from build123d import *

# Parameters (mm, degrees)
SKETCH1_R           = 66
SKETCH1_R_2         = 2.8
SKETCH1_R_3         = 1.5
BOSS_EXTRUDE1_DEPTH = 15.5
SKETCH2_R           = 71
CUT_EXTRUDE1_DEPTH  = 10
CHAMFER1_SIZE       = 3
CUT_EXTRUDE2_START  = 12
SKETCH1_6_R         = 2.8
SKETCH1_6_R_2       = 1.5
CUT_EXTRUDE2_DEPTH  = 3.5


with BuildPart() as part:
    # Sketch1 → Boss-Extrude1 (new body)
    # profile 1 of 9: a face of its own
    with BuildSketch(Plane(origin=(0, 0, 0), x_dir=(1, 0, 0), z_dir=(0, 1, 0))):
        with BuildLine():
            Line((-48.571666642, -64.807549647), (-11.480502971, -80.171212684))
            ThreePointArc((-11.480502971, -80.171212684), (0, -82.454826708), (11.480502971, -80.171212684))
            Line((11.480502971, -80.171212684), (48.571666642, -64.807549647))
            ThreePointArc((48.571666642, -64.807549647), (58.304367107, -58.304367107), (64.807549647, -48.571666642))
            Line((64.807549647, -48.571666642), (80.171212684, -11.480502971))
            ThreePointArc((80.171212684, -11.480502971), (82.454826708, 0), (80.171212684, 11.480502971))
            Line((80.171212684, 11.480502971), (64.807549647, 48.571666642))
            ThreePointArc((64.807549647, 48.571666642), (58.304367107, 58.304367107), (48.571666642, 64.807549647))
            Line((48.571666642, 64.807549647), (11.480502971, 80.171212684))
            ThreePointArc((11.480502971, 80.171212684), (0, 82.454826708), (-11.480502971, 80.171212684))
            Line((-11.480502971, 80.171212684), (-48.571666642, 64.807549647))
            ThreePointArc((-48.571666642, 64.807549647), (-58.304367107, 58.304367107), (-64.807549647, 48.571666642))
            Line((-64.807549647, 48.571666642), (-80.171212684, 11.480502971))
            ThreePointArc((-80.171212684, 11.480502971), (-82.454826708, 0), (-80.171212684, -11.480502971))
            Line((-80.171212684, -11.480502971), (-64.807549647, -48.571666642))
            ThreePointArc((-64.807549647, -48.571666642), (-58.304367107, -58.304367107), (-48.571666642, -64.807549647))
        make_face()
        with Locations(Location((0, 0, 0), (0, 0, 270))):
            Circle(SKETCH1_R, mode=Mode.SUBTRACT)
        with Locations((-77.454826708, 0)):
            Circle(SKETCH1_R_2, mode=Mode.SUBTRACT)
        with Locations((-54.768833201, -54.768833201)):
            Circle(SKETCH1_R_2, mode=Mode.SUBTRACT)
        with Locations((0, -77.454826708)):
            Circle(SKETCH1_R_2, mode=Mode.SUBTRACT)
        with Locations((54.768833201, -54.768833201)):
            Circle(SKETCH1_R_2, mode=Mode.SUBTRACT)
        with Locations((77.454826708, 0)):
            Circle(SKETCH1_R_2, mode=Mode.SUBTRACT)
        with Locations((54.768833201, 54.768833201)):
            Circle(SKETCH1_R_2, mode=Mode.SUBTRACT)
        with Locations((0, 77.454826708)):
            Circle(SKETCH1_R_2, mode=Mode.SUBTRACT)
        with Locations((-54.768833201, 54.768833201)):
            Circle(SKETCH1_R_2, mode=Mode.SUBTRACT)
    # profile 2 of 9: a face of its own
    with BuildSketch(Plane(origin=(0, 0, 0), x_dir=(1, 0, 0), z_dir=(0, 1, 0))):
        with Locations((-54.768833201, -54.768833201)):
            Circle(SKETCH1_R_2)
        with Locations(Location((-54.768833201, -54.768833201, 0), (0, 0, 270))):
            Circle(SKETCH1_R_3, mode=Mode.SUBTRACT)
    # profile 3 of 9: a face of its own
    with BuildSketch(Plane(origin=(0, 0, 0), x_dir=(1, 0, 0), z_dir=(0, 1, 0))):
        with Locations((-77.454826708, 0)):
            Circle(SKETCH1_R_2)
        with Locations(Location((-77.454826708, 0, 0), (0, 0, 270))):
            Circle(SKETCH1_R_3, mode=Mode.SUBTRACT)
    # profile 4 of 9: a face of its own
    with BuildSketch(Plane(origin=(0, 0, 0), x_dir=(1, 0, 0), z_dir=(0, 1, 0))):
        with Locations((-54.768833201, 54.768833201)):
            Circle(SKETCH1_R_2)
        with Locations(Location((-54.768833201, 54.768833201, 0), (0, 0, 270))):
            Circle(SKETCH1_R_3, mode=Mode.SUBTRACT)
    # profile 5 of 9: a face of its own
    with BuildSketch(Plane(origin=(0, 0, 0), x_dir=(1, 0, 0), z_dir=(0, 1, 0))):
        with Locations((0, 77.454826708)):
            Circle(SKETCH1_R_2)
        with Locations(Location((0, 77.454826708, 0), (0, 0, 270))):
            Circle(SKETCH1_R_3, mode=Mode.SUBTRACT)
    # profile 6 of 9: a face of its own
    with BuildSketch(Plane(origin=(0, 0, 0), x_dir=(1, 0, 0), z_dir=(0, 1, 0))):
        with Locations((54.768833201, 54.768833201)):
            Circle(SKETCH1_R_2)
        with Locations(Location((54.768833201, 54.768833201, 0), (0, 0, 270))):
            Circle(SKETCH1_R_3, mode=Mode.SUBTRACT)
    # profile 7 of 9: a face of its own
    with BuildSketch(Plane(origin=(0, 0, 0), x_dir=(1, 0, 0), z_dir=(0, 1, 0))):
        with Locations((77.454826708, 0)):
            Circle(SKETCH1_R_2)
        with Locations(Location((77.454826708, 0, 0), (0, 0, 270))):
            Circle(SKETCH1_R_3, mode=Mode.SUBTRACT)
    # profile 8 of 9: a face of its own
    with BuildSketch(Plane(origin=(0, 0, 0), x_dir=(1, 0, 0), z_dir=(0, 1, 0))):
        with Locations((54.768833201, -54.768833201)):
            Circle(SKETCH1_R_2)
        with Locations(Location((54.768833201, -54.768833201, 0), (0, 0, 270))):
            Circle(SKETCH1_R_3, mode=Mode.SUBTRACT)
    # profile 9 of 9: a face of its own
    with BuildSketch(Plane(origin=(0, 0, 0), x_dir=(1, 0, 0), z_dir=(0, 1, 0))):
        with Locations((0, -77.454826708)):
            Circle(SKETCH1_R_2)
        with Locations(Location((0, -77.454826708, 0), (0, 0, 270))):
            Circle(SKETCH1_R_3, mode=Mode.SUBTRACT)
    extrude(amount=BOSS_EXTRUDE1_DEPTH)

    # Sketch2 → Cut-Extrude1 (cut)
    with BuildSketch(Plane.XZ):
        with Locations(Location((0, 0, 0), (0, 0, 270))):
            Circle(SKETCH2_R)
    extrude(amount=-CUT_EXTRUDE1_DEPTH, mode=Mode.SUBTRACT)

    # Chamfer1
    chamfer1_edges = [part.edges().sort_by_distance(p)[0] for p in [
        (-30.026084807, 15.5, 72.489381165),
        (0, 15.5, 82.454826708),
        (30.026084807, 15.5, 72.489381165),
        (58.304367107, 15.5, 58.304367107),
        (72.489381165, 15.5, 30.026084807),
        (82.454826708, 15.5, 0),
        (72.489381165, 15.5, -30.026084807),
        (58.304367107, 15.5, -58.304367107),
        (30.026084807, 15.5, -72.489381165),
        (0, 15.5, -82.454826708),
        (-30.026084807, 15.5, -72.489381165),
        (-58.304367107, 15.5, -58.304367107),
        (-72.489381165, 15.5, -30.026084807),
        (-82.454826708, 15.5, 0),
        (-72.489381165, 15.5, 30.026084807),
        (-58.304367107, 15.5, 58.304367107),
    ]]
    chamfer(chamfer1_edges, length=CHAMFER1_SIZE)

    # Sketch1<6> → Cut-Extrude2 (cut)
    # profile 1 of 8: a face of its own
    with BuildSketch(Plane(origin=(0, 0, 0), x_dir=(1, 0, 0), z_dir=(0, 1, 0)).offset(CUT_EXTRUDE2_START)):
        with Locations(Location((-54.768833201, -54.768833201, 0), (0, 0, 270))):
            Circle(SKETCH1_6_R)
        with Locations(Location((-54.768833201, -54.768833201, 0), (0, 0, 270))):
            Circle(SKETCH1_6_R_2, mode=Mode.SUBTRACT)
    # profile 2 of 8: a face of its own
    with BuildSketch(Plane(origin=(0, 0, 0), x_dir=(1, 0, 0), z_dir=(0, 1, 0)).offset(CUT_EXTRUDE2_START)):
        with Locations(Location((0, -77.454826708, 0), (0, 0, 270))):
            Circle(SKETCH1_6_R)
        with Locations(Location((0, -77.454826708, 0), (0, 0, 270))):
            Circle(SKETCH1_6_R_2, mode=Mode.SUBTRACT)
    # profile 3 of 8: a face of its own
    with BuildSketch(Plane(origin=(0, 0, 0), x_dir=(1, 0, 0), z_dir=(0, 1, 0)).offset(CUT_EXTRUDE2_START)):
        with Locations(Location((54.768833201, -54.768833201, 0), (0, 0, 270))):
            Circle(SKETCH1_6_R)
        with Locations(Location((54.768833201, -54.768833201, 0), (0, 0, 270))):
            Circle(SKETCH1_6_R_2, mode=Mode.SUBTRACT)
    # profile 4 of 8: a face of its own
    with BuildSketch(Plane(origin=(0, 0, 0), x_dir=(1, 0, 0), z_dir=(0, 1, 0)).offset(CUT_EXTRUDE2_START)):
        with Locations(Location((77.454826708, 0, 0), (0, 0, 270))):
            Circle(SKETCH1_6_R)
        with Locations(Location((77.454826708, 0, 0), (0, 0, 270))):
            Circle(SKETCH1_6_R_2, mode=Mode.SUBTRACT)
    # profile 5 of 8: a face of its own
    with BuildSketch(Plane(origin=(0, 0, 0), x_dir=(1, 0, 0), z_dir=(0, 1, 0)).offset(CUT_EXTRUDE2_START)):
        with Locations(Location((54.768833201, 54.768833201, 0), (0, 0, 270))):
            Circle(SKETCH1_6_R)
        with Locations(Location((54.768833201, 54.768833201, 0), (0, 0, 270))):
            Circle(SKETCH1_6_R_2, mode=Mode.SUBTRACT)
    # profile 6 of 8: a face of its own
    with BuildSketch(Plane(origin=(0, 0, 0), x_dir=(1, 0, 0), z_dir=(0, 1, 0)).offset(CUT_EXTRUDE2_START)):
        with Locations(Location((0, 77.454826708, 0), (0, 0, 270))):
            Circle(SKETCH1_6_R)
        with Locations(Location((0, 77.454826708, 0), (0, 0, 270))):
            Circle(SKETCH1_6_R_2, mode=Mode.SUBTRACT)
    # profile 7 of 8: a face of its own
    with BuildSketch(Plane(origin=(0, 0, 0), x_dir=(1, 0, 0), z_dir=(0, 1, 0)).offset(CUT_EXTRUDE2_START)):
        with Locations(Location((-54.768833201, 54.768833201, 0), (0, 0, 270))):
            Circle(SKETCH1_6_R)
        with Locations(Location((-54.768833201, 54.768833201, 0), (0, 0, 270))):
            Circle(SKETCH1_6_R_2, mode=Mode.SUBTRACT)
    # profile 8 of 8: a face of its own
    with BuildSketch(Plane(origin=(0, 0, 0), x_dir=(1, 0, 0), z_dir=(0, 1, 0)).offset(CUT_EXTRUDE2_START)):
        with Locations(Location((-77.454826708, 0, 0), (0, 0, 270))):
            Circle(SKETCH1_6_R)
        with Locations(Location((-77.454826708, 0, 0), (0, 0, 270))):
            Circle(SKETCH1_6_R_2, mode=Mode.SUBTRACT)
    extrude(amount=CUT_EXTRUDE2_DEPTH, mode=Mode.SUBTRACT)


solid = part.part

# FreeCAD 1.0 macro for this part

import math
import FreeCAD as App
import Part
import Sketcher

V = App.Vector
Q = App.Units.Quantity


def edges_at(feature, points):
    """Names of the edges that pass closest to the given points."""
    edges = feature.Shape.Edges
    near = lambda p: min(range(len(edges)), key=lambda i: edges[i].distToShape(Part.Vertex(*p))[0])
    return sorted({f"Edge{near(p) + 1}" for p in points})

doc = App.newDocument("Part")
params = doc.addObject("Spreadsheet::Sheet", "Params")
for row, (alias, value) in enumerate([
    ("sketch1_diameter", "132 mm"),
    ("sketch1_diameter2", "3 mm"),
    ("sketch1_radius", "30 mm"),
    ("pad1_length", "15.5 mm"),
    ("sketch2_diameter", "142 mm"),
    ("pocket1_length", "10 mm"),
    ("chamfer_size", "3 mm"),
    ("sketch3_diameter", "3 mm"),
    ("sketch3_diameter2", "5.6 mm"),
    ("pocket2_length", "3.5 mm"),
], start=1):
    params.set(f"A{row}", alias)
    params.set(f"B{row}", "=" + value)
    params.setAlias(f"B{row}", alias)

body = doc.addObject("PartDesign::Body", "Body")

# Sketch on XZ plane
sketch1 = doc.addObject("Sketcher::SketchObject", "Sketch")
body.addObject(sketch1)
sketch1.AttachmentSupport = (doc.XZ_Plane, [""])
sketch1.MapMode = "FlatFace"
sketch1.addGeometry(Part.LineSegment(V(-48.571667, 64.80755, 0), V(-11.480503, 80.171213, 0)), False)
sketch1.addGeometry(Part.ArcOfCircle(Part.Circle(V(0, 52.454827, 0), V(0, 0, 1), 30), math.radians(67.5), math.radians(112.5)), False)
sketch1.addGeometry(Part.LineSegment(V(11.480503, 80.171213, 0), V(48.571667, 64.80755, 0)), False)
sketch1.addGeometry(Part.ArcOfCircle(Part.Circle(V(37.091164, 37.091164, 0), V(0, 0, 1), 30), math.radians(22.5), math.radians(67.5)), False)
sketch1.addGeometry(Part.LineSegment(V(64.80755, 48.571667, 0), V(80.171213, 11.480503, 0)), False)
sketch1.addGeometry(Part.ArcOfCircle(Part.Circle(V(52.454827, 0, 0), V(0, 0, 1), 30), math.radians(-22.5), math.radians(22.5)), False)
sketch1.addGeometry(Part.LineSegment(V(80.171213, -11.480503, 0), V(64.80755, -48.571667, 0)), False)
sketch1.addGeometry(Part.ArcOfCircle(Part.Circle(V(37.091164, -37.091164, 0), V(0, 0, 1), 30), math.radians(-67.5), math.radians(-22.5)), False)
sketch1.addGeometry(Part.LineSegment(V(48.571667, -64.80755, 0), V(11.480503, -80.171213, 0)), False)
sketch1.addGeometry(Part.ArcOfCircle(Part.Circle(V(0, -52.454827, 0), V(0, 0, 1), 30), math.radians(-112.5), math.radians(-67.5)), False)
sketch1.addGeometry(Part.LineSegment(V(-11.480503, -80.171213, 0), V(-48.571667, -64.80755, 0)), False)
sketch1.addGeometry(Part.ArcOfCircle(Part.Circle(V(-37.091164, -37.091164, 0), V(0, 0, 1), 30), math.radians(-157.5), math.radians(-112.5)), False)
sketch1.addGeometry(Part.LineSegment(V(-64.80755, -48.571667, 0), V(-80.171213, -11.480503, 0)), False)
sketch1.addGeometry(Part.ArcOfCircle(Part.Circle(V(-52.454827, 0, 0), V(0, 0, 1), 30), math.radians(157.5), math.radians(202.5)), False)
sketch1.addGeometry(Part.LineSegment(V(-80.171213, 11.480503, 0), V(-64.80755, 48.571667, 0)), False)
sketch1.addGeometry(Part.ArcOfCircle(Part.Circle(V(-37.091164, 37.091164, 0), V(0, 0, 1), 30), math.radians(112.5), math.radians(157.5)), False)
sketch1.addGeometry(Part.Circle(V(0, 0, 0), V(0, 0, 1), 66), False)
sketch1.addGeometry(Part.Circle(V(-54.768833, 54.768833, 0), V(0, 0, 1), 1.5), False)
sketch1.addGeometry(Part.Circle(V(0, 77.454827, 0), V(0, 0, 1), 1.5), False)
sketch1.addGeometry(Part.Circle(V(54.768833, 54.768833, 0), V(0, 0, 1), 1.5), False)
sketch1.addGeometry(Part.Circle(V(-77.454827, 0, 0), V(0, 0, 1), 1.5), False)
sketch1.addGeometry(Part.Circle(V(-54.768833, -54.768833, 0), V(0, 0, 1), 1.5), False)
sketch1.addGeometry(Part.Circle(V(77.454827, 0, 0), V(0, 0, 1), 1.5), False)
sketch1.addGeometry(Part.Circle(V(0, -77.454827, 0), V(0, 0, 1), 1.5), False)
sketch1.addGeometry(Part.Circle(V(54.768833, -54.768833, 0), V(0, 0, 1), 1.5), False)
sketch1.addConstraint(Sketcher.Constraint("Tangent", 0, 2, 1, 2))
sketch1.addConstraint(Sketcher.Constraint("Tangent", 1, 1, 2, 1))
sketch1.addConstraint(Sketcher.Constraint("Tangent", 2, 2, 3, 2))
sketch1.addConstraint(Sketcher.Constraint("Tangent", 3, 1, 4, 1))
sketch1.addConstraint(Sketcher.Constraint("Tangent", 4, 2, 5, 2))
sketch1.addConstraint(Sketcher.Constraint("Tangent", 5, 1, 6, 1))
sketch1.addConstraint(Sketcher.Constraint("Tangent", 6, 2, 7, 2))
sketch1.addConstraint(Sketcher.Constraint("Tangent", 7, 1, 8, 1))
sketch1.addConstraint(Sketcher.Constraint("Tangent", 8, 2, 9, 2))
sketch1.addConstraint(Sketcher.Constraint("Tangent", 9, 1, 10, 1))
sketch1.addConstraint(Sketcher.Constraint("Tangent", 10, 2, 11, 2))
sketch1.addConstraint(Sketcher.Constraint("Tangent", 11, 1, 12, 1))
sketch1.addConstraint(Sketcher.Constraint("Tangent", 12, 2, 13, 2))
sketch1.addConstraint(Sketcher.Constraint("Tangent", 13, 1, 14, 1))
sketch1.addConstraint(Sketcher.Constraint("Tangent", 14, 2, 15, 2))
sketch1.addConstraint(Sketcher.Constraint("Tangent", 15, 1, 0, 1))
sketch1.addConstraint(Sketcher.Constraint("Coincident", 16, 3, -1, 1))
sketch1.addConstraint(Sketcher.Constraint("Equal", 1, 3))
sketch1.addConstraint(Sketcher.Constraint("Equal", 3, 5))
sketch1.addConstraint(Sketcher.Constraint("Equal", 5, 7))
sketch1.addConstraint(Sketcher.Constraint("Equal", 7, 9))
sketch1.addConstraint(Sketcher.Constraint("Equal", 9, 11))
sketch1.addConstraint(Sketcher.Constraint("Equal", 11, 13))
sketch1.addConstraint(Sketcher.Constraint("Equal", 13, 15))
sketch1.addConstraint(Sketcher.Constraint("Equal", 17, 18))
sketch1.addConstraint(Sketcher.Constraint("Equal", 18, 19))
sketch1.addConstraint(Sketcher.Constraint("Equal", 19, 20))
sketch1.addConstraint(Sketcher.Constraint("Equal", 20, 21))
sketch1.addConstraint(Sketcher.Constraint("Equal", 21, 22))
sketch1.addConstraint(Sketcher.Constraint("Equal", 22, 23))
sketch1.addConstraint(Sketcher.Constraint("Equal", 23, 24))
sketch1.addConstraint(Sketcher.Constraint("Symmetric", 1, 3, 9, 3, -1, 1))
sketch1.addConstraint(Sketcher.Constraint("Symmetric", 3, 3, 11, 3, -1, 1))
sketch1.addConstraint(Sketcher.Constraint("Symmetric", 5, 3, 13, 3, -1, 1))
sketch1.addConstraint(Sketcher.Constraint("Symmetric", 7, 3, 15, 3, -1, 1))
sketch1.addConstraint(Sketcher.Constraint("Symmetric", 19, 3, 21, 3, -1, 1))
sketch1.addConstraint(Sketcher.Constraint("Symmetric", 20, 3, 22, 3, -1, 1))
sketch1.addConstraint(Sketcher.Constraint("Symmetric", 18, 3, 23, 3, -1, 1))
sketch1.addConstraint(Sketcher.Constraint("Symmetric", 17, 3, 24, 3, -1, 1))
sketch1.addConstraint(Sketcher.Constraint("Symmetric", 7, 3, 11, 3, -2))
sketch1.addConstraint(Sketcher.Constraint("Symmetric", 17, 3, 19, 3, -2))
sketch1.addConstraint(Sketcher.Constraint("PointOnObject", 1, 3, -2))
sketch1.addConstraint(Sketcher.Constraint("PointOnObject", 5, 3, -1))
sketch1.addConstraint(Sketcher.Constraint("PointOnObject", 18, 3, -2))
sketch1.addConstraint(Sketcher.Constraint("PointOnObject", 20, 3, -1))
sketch1.addConstraint(Sketcher.Constraint("Perpendicular", 0, 4))
sketch1.addConstraint(Sketcher.Constraint("Equal", 2, 4))
sketch1.addConstraint(Sketcher.Constraint("Diameter", 16, Q("132 mm")))
sketch1.addConstraint(Sketcher.Constraint("Diameter", 17, Q("3 mm")))
sketch1.addConstraint(Sketcher.Constraint("Radius", 1, Q("30 mm")))
sketch1.addConstraint(Sketcher.Constraint("Angle", 0, Q("22.5 deg")))
sketch1.addConstraint(Sketcher.Constraint("DistanceY", 1, 3, 18, 3, Q("25 mm")))
sketch1.addConstraint(Sketcher.Constraint("DistanceX", 20, 3, 13, 3, Q("25 mm")))
sketch1.addConstraint(Sketcher.Constraint("DistanceY", -1, 1, 2, 2, Q("64.80755 mm")))
sketch1.addConstraint(Sketcher.Constraint("DistanceX", 17, 3, 15, 3, Q("17.67767 mm")))
sketch1.addConstraint(Sketcher.Constraint("DistanceY", 15, 3, 17, 3, Q("17.67767 mm")))
sketch1.setExpression("Constraints[47]", "Params.sketch1_diameter")
sketch1.setExpression("Constraints[48]", "Params.sketch1_diameter2")
sketch1.setExpression("Constraints[49]", "Params.sketch1_radius")
pad1 = doc.addObject("PartDesign::Pad", "Pad")
body.addObject(pad1)
pad1.Profile = sketch1
pad1.setExpression("Length", "Params.pad1_length")
pad1.Reversed = True

# Sketch on XZ plane
sketch2 = doc.addObject("Sketcher::SketchObject", "Sketch001")
body.addObject(sketch2)
sketch2.AttachmentSupport = (doc.XZ_Plane, [""])
sketch2.MapMode = "FlatFace"
sketch2.addGeometry(Part.Circle(V(0, 0, 0), V(0, 0, 1), 71), False)
sketch2.addConstraint(Sketcher.Constraint("Coincident", 0, 3, -1, 1))
sketch2.addConstraint(Sketcher.Constraint("Diameter", 0, Q("142 mm")))
sketch2.setExpression("Constraints[1]", "Params.sketch2_diameter")
pocket1 = doc.addObject("PartDesign::Pocket", "Pocket")
body.addObject(pocket1)
pocket1.Profile = sketch2
pocket1.setExpression("Length", "Params.pocket1_length")
doc.recompute()

chamfer = doc.addObject("PartDesign::Chamfer", "Chamfer")
body.addObject(chamfer)
chamfer.Base = (pocket1, edges_at(pocket1, [
    (-30.026, 15.5, 72.489),
    (0, 15.5, 82.455),
    (30.026, 15.5, 72.489),
    (58.304, 15.5, 58.304),
    (72.489, 15.5, 30.026),
    (82.455, 15.5, 0),
    (72.489, 15.5, -30.026),
    (58.304, 15.5, -58.304),
    (30.026, 15.5, -72.489),
    (0, 15.5, -82.455),
    (-30.026, 15.5, -72.489),
    (-58.304, 15.5, -58.304),
    (-72.489, 15.5, -30.026),
    (-82.455, 15.5, 0),
    (-72.489, 15.5, 30.026),
    (-58.304, 15.5, 58.304),
]))
chamfer.setExpression("Size", "Params.chamfer_size")

# Sketch on XZ plane
sketch3 = doc.addObject("Sketcher::SketchObject", "Sketch002")
body.addObject(sketch3)
sketch3.AttachmentSupport = (doc.XZ_Plane, [""])
sketch3.MapMode = "FlatFace"
sketch3.AttachmentOffset = App.Placement(V(0, 0, -12), App.Rotation())
sketch3.addGeometry(Part.Circle(V(-54.768833, 54.768833, 0), V(0, 0, 1), 2.8), False)
sketch3.addGeometry(Part.Circle(V(-54.768833, 54.768833, 0), V(0, 0, 1), 1.5), False)
sketch3.addGeometry(Part.Circle(V(0, 77.454827, 0), V(0, 0, 1), 2.8), False)
sketch3.addGeometry(Part.Circle(V(0, 77.454827, 0), V(0, 0, 1), 1.5), False)
sketch3.addGeometry(Part.Circle(V(54.768833, 54.768833, 0), V(0, 0, 1), 2.8), False)
sketch3.addGeometry(Part.Circle(V(54.768833, 54.768833, 0), V(0, 0, 1), 1.5), False)
sketch3.addGeometry(Part.Circle(V(77.454827, 0, 0), V(0, 0, 1), 2.8), False)
sketch3.addGeometry(Part.Circle(V(77.454827, 0, 0), V(0, 0, 1), 1.5), False)
sketch3.addGeometry(Part.Circle(V(54.768833, -54.768833, 0), V(0, 0, 1), 2.8), False)
sketch3.addGeometry(Part.Circle(V(54.768833, -54.768833, 0), V(0, 0, 1), 1.5), False)
sketch3.addGeometry(Part.Circle(V(0, -77.454827, 0), V(0, 0, 1), 2.8), False)
sketch3.addGeometry(Part.Circle(V(0, -77.454827, 0), V(0, 0, 1), 1.5), False)
sketch3.addGeometry(Part.Circle(V(-54.768833, -54.768833, 0), V(0, 0, 1), 2.8), False)
sketch3.addGeometry(Part.Circle(V(-54.768833, -54.768833, 0), V(0, 0, 1), 1.5), False)
sketch3.addGeometry(Part.Circle(V(-77.454827, 0, 0), V(0, 0, 1), 2.8), False)
sketch3.addGeometry(Part.Circle(V(-77.454827, 0, 0), V(0, 0, 1), 1.5), False)
sketch3.addConstraint(Sketcher.Constraint("Coincident", 1, 3, 0, 3))
sketch3.addConstraint(Sketcher.Constraint("Coincident", 3, 3, 2, 3))
sketch3.addConstraint(Sketcher.Constraint("Coincident", 5, 3, 4, 3))
sketch3.addConstraint(Sketcher.Constraint("Coincident", 7, 3, 6, 3))
sketch3.addConstraint(Sketcher.Constraint("Coincident", 9, 3, 8, 3))
sketch3.addConstraint(Sketcher.Constraint("Coincident", 11, 3, 10, 3))
sketch3.addConstraint(Sketcher.Constraint("Coincident", 13, 3, 12, 3))
sketch3.addConstraint(Sketcher.Constraint("Coincident", 15, 3, 14, 3))
sketch3.addConstraint(Sketcher.Constraint("Equal", 0, 2))
sketch3.addConstraint(Sketcher.Constraint("Equal", 1, 3))
sketch3.addConstraint(Sketcher.Constraint("Equal", 2, 4))
sketch3.addConstraint(Sketcher.Constraint("Equal", 3, 5))
sketch3.addConstraint(Sketcher.Constraint("Equal", 4, 6))
sketch3.addConstraint(Sketcher.Constraint("Equal", 5, 7))
sketch3.addConstraint(Sketcher.Constraint("Equal", 6, 8))
sketch3.addConstraint(Sketcher.Constraint("Equal", 7, 9))
sketch3.addConstraint(Sketcher.Constraint("Equal", 8, 10))
sketch3.addConstraint(Sketcher.Constraint("Equal", 9, 11))
sketch3.addConstraint(Sketcher.Constraint("Equal", 10, 12))
sketch3.addConstraint(Sketcher.Constraint("Equal", 11, 13))
sketch3.addConstraint(Sketcher.Constraint("Equal", 12, 14))
sketch3.addConstraint(Sketcher.Constraint("Equal", 13, 15))
sketch3.addConstraint(Sketcher.Constraint("Symmetric", 0, 3, 8, 3, -1, 1))
sketch3.addConstraint(Sketcher.Constraint("Symmetric", 2, 3, 10, 3, -1, 1))
sketch3.addConstraint(Sketcher.Constraint("Symmetric", 4, 3, 12, 3, -1, 1))
sketch3.addConstraint(Sketcher.Constraint("Symmetric", 6, 3, 14, 3, -1, 1))
sketch3.addConstraint(Sketcher.Constraint("Symmetric", 0, 3, 4, 3, -2))
sketch3.addConstraint(Sketcher.Constraint("PointOnObject", 2, 3, -2))
sketch3.addConstraint(Sketcher.Constraint("PointOnObject", 6, 3, -1))
sketch3.addConstraint(Sketcher.Constraint("Diameter", 1, Q("3 mm")))
sketch3.addConstraint(Sketcher.Constraint("Diameter", 0, Q("5.6 mm")))
sketch3.addConstraint(Sketcher.Constraint("DistanceX", 0, 3, 6, 3, Q("132.22366 mm")))
sketch3.addConstraint(Sketcher.Constraint("DistanceY", 8, 3, 2, 3, Q("132.22366 mm")))
sketch3.addConstraint(Sketcher.Constraint("DistanceX", 0, 3, -1, 1, Q("54.768833 mm")))
sketch3.addConstraint(Sketcher.Constraint("DistanceY", -1, 1, 0, 3, Q("54.768833 mm")))
sketch3.setExpression("Constraints[29]", "Params.sketch3_diameter")
sketch3.setExpression("Constraints[30]", "Params.sketch3_diameter2")
pocket2 = doc.addObject("PartDesign::Pocket", "Pocket001")
body.addObject(pocket2)
pocket2.Profile = sketch3
pocket2.setExpression("Length", "Params.pocket2_length")

doc.recompute()
